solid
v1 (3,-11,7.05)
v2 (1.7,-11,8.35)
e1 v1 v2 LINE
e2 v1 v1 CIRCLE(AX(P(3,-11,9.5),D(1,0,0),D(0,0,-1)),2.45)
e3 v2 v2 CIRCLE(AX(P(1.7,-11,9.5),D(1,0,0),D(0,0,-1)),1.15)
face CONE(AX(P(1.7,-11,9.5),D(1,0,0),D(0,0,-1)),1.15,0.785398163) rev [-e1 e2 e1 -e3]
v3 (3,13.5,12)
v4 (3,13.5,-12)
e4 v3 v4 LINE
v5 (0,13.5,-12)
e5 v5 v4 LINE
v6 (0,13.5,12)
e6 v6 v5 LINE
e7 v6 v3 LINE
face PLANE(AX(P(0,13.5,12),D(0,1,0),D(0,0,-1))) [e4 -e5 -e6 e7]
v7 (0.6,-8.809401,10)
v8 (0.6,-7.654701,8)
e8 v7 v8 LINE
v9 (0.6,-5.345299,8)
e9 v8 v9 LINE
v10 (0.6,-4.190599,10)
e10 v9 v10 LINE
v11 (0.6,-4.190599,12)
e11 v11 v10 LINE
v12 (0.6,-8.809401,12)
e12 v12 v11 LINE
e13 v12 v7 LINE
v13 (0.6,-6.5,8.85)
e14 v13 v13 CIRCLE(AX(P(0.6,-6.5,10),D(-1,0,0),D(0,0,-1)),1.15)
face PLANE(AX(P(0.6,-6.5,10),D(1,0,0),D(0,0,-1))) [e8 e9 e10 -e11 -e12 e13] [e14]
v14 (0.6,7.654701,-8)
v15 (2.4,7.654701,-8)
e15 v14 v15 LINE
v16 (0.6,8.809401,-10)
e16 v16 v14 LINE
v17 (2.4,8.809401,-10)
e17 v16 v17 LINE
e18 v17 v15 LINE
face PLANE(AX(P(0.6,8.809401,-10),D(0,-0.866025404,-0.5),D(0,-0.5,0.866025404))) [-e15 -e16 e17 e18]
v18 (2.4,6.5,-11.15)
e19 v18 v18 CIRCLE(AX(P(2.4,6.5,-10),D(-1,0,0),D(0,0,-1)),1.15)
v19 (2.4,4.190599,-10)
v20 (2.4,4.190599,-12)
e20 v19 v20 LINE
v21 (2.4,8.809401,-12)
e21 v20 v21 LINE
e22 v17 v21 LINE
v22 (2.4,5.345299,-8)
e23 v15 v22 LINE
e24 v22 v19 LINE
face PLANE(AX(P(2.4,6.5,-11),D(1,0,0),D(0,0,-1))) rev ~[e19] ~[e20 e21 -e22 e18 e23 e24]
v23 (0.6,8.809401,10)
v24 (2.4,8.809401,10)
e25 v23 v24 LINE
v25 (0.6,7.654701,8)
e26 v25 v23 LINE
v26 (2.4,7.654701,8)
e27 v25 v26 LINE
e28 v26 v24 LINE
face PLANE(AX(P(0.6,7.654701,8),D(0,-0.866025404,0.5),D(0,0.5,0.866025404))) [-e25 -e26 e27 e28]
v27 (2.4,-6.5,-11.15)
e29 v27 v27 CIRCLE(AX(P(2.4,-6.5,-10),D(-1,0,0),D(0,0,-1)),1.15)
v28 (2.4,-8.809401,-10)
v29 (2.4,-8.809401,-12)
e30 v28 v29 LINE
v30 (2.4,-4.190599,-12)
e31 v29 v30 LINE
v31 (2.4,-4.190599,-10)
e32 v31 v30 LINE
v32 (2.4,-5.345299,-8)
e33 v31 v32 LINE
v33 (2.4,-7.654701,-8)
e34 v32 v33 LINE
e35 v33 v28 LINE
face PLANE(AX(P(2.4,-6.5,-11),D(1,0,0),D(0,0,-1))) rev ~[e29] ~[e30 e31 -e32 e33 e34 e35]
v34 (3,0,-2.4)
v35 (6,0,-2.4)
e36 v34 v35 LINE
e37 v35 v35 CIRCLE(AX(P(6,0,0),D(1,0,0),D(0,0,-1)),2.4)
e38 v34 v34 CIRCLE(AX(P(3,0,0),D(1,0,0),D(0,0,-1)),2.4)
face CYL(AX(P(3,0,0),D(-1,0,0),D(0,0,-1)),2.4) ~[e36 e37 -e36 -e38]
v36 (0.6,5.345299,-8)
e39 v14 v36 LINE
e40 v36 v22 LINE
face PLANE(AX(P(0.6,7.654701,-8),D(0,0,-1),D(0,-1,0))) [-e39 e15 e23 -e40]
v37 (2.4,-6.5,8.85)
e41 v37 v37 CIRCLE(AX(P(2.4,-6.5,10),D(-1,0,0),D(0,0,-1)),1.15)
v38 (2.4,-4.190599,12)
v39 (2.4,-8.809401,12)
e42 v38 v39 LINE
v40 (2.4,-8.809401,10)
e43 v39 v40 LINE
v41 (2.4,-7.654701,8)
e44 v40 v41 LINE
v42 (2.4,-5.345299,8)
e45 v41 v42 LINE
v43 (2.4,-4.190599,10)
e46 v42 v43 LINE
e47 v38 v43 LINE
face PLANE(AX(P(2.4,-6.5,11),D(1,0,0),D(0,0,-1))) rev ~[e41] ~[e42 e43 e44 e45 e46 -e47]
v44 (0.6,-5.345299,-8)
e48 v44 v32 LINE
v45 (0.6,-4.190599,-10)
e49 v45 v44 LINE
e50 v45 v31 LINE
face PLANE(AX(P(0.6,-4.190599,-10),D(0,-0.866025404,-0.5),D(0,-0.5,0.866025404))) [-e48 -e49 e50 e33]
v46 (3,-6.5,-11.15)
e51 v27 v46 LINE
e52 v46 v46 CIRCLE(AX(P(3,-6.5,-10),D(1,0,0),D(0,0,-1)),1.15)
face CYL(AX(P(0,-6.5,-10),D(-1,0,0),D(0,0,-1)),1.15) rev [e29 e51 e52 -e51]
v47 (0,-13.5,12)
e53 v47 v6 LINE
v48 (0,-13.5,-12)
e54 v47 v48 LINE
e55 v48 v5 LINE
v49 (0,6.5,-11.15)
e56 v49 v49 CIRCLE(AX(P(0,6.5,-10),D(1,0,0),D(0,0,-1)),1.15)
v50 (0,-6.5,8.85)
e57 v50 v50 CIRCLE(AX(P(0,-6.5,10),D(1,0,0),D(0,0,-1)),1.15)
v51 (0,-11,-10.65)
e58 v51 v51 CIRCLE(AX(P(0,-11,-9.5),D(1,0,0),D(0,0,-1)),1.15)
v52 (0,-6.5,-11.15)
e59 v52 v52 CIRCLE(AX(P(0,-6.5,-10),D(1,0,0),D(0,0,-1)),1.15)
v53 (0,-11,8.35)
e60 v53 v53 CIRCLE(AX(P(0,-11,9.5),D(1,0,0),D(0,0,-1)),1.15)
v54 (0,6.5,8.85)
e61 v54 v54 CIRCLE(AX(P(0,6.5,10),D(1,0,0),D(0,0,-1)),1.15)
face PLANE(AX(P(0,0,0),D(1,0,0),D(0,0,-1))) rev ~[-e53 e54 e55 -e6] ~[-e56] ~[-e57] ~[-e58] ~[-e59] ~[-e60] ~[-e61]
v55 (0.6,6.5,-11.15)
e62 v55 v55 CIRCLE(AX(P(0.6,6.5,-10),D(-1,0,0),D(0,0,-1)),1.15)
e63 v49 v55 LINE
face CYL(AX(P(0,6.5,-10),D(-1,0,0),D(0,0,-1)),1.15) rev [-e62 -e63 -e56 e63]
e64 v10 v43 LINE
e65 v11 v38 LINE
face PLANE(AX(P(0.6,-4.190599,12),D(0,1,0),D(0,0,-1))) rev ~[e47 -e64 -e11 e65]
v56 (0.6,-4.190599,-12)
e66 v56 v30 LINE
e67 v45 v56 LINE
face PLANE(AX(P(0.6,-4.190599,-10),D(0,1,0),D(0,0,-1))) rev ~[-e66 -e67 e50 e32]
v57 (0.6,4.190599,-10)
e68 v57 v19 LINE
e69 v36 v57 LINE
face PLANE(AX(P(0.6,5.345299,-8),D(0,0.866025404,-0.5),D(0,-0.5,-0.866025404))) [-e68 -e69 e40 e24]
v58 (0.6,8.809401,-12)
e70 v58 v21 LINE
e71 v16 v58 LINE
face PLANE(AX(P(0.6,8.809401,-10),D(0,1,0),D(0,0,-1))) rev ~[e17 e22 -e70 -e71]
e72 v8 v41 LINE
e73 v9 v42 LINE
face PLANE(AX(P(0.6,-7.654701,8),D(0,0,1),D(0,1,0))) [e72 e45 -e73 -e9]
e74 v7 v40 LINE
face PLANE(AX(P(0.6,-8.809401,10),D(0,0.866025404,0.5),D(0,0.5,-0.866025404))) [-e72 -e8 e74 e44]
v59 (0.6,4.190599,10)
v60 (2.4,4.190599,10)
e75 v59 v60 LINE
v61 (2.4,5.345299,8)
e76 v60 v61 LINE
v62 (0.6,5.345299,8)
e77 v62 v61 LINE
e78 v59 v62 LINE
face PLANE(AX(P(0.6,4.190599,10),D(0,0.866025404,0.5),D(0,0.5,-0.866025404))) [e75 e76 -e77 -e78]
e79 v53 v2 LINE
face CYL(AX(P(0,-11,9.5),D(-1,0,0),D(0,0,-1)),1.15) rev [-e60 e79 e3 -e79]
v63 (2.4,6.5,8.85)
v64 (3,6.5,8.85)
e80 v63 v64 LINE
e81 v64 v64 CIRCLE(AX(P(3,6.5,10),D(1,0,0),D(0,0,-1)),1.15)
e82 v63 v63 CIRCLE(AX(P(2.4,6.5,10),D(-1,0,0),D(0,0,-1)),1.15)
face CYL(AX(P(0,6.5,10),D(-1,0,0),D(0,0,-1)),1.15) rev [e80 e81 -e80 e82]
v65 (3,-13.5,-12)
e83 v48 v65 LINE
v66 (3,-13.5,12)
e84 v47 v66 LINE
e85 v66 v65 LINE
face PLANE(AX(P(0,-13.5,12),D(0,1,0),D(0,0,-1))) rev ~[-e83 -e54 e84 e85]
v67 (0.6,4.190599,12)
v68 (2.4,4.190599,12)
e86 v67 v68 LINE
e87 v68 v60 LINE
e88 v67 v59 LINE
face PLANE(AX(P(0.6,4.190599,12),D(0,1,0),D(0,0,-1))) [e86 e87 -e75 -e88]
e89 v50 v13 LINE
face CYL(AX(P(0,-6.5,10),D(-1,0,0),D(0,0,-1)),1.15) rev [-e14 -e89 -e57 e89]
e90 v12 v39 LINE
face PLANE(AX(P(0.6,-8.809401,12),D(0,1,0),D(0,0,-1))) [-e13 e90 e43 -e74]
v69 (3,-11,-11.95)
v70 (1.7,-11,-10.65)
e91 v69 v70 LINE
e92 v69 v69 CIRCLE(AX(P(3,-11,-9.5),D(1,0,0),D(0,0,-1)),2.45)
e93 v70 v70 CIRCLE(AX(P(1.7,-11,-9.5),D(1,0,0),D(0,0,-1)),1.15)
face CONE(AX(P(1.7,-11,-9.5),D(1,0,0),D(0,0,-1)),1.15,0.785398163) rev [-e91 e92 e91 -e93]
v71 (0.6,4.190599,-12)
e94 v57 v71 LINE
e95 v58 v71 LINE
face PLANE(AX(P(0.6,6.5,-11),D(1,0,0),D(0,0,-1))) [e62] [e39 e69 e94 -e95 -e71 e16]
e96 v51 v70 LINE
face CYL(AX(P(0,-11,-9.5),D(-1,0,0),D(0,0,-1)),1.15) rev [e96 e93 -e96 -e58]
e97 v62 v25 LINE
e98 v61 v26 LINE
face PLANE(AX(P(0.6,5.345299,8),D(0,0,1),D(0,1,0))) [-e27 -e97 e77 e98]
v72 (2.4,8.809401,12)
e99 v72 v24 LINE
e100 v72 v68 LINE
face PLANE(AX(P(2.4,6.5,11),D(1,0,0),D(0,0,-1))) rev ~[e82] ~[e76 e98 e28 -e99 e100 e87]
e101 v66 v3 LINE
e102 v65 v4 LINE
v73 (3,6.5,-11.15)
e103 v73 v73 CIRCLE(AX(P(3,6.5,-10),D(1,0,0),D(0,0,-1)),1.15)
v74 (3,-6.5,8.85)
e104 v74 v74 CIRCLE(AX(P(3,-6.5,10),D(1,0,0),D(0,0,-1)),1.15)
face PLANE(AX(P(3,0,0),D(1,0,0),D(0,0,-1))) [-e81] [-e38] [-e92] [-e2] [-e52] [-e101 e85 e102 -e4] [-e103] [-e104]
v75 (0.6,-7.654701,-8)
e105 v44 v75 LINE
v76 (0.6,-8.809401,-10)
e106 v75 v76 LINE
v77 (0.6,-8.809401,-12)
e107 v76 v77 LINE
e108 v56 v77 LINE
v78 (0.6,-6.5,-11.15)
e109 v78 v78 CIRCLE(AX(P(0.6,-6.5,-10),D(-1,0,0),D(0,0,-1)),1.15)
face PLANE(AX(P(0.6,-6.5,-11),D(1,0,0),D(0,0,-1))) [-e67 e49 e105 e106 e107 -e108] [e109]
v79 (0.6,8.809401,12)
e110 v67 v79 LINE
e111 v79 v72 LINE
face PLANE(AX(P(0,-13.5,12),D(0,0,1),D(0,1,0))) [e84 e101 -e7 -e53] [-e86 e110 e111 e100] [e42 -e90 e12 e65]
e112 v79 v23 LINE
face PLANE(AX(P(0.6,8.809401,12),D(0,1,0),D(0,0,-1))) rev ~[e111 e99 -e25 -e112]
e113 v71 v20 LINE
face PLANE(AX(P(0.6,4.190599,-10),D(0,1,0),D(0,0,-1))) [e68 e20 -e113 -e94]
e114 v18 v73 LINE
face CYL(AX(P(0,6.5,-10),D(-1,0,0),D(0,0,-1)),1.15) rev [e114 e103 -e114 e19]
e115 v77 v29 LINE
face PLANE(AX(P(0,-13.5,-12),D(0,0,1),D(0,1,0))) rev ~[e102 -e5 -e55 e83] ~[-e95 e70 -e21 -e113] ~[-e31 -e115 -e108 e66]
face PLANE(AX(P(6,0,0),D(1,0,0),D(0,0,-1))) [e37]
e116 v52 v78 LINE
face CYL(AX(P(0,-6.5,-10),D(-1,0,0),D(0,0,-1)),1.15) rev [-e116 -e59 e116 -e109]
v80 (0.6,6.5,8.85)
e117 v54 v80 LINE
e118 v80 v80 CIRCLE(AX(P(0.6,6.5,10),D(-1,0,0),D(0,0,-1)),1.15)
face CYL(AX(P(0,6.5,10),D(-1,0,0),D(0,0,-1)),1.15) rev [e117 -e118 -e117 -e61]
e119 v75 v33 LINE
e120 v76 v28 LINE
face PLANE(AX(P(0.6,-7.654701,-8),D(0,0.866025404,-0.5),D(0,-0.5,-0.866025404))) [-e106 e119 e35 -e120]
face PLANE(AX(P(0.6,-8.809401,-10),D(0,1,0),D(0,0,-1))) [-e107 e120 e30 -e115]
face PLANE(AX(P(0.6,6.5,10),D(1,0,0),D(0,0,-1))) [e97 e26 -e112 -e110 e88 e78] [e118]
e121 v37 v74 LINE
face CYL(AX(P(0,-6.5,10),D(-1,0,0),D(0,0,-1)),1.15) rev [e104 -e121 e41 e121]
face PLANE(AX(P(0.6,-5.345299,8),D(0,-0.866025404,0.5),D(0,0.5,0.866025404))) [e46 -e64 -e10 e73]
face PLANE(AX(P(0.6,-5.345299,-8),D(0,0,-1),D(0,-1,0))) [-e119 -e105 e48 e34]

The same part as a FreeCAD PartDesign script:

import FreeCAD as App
import Part
import Sketcher

V = App.Vector
Q = App.Units.Quantity


def edges_at(feature, points):
    """Names of the edges that pass closest to the given points."""
    edges = feature.Shape.Edges
    near = lambda p: min(range(len(edges)), key=lambda i: edges[i].distToShape(Part.Vertex(*p))[0])
    return sorted({f"Edge{near(p) + 1}" for p in points})

doc = App.newDocument("Part")
params = doc.addObject("Spreadsheet::Sheet", "Params")
for row, (alias, value) in enumerate([
    ("sketch1_diameter", "2.3 mm"),
    ("sketch1_width", "27 mm"),
    ("sketch1_height", "24 mm"),
    ("pad1_length", "3 mm"),
    ("sketch2_diameter", "4.8 mm"),
    ("pad2_length", "3 mm"),
    ("chamfer_size", "1.3 mm"),
    ("sketch3_diameter", "2.3 mm"),
    ("pocket1_length", "3 mm"),
    ("pocket2_length", "1.8 mm"),
    ("sketch5_height", "2 mm"),
    ("pocket3_length", "1.8 mm"),
], start=1):
    params.set(f"A{row}", alias)
    params.set(f"B{row}", "=" + value)
    params.setAlias(f"B{row}", alias)

body = doc.addObject("PartDesign::Body", "Body")

sketch1 = body.newObject("Sketcher::SketchObject", "Sketch")
sketch1.AttachmentSupport = (doc.getObject("YZ_Plane"), [""])
sketch1.MapMode = "FlatFace"
sketch1.addGeometry([
    Part.LineSegment(V(13.5, 12, 0), V(-13.5, 12, 0)),
    Part.LineSegment(V(-13.5, 12, 0), V(-13.5, -12, 0)),
    Part.LineSegment(V(-13.5, -12, 0), V(13.5, -12, 0)),
    Part.LineSegment(V(13.5, -12, 0), V(13.5, 12, 0)),
    Part.Circle(V(-11, 9.5, 0), V(0, 0, 1), 1.1),
    Part.Circle(V(-11, -9.5, 0), V(0, 0, 1), 1.1),
], False)
sketch1.addConstraint([
    Sketcher.Constraint("Coincident", 0, 2, 1, 1),
    Sketcher.Constraint("Coincident", 1, 2, 2, 1),
    Sketcher.Constraint("Coincident", 2, 2, 3, 1),
    Sketcher.Constraint("Coincident", 3, 2, 0, 1),
    Sketcher.Constraint("Horizontal", 0),
    Sketcher.Constraint("Vertical", 1),
    Sketcher.Constraint("Horizontal", 2),
    Sketcher.Constraint("Vertical", 3),
    Sketcher.Constraint("Equal", 4, 5),
    Sketcher.Constraint("Symmetric", 0, 2, 2, 2, -1, 1),
    Sketcher.Constraint("Symmetric", 4, 3, 5, 3, -1),
    Sketcher.Constraint("Diameter", 4, Q("2.3 mm")),
    Sketcher.Constraint("DistanceX", 0, 2, 0, 1, Q("27 mm")),
    Sketcher.Constraint("DistanceY", 1, 2, 1, 1, Q("24 mm")),
    Sketcher.Constraint("DistanceX", 4, 3, -1, 1, Q("11 mm")),
    Sketcher.Constraint("DistanceY", 5, 3, 4, 3, Q("19 mm")),
])
sketch1.setExpression("Constraints[11]", "Params.sketch1_diameter")
sketch1.setExpression("Constraints[12]", "Params.sketch1_width")
sketch1.setExpression("Constraints[13]", "Params.sketch1_height")
pad1 = body.newObject("PartDesign::Pad", "Pad")
pad1.Profile = sketch1
pad1.setExpression("Length", "Params.pad1_length")

sketch2 = body.newObject("Sketcher::SketchObject", "Sketch001")
sketch2.AttachmentSupport = (doc.getObject("YZ_Plane"), [""])
sketch2.MapMode = "FlatFace"
sketch2.AttachmentOffset = App.Placement(V(0, 0, 3), App.Rotation())
sketch2.addGeometry(Part.Circle(V(0, 0, 0), V(0, 0, 1), 2.4), False)
sketch2.addConstraint([
    Sketcher.Constraint("Coincident", 0, 3, -1, 1),
    Sketcher.Constraint("Diameter", 0, Q("4.8 mm")),
])
sketch2.setExpression("Constraints[1]", "Params.sketch2_diameter")
pad2 = body.newObject("PartDesign::Pad", "Pad001")
pad2.Profile = sketch2
pad2.setExpression("Length", "Params.pad2_length")
doc.recompute()

chamfer = body.newObject("PartDesign::Chamfer", "Chamfer")
chamfer.Base = (pad2, edges_at(pad2, [(3, -11, 10.65), (3, -11, -8.35)]))
chamfer.setExpression("Size", "Params.chamfer_size")

sketch3 = body.newObject("Sketcher::SketchObject", "Sketch002")
sketch3.AttachmentSupport = (doc.getObject("YZ_Plane"), [""])
sketch3.MapMode = "FlatFace"
sketch3.addGeometry([
    Part.Circle(V(6.5, 10, 0), V(0, 0, 1), 1.1),
    Part.Circle(V(-6.5, 10, 0), V(0, 0, 1), 1.1),
    Part.Circle(V(-6.5, -10, 0), V(0, 0, 1), 1.1),
    Part.Circle(V(6.5, -10, 0), V(0, 0, 1), 1.1),
], False)
sketch3.addConstraint([
    Sketcher.Constraint("Equal", 0, 1),
    Sketcher.Constraint("Equal", 1, 2),
    Sketcher.Constraint("Equal", 2, 3),
    Sketcher.Constraint("Symmetric", 0, 3, 2, 3, -1, 1),
    Sketcher.Constraint("Symmetric", 1, 3, 3, 3, -1, 1),
    Sketcher.Constraint("Symmetric", 0, 3, 1, 3, -2),
    Sketcher.Constraint("Diameter", 0, Q("2.3 mm")),
    Sketcher.Constraint("DistanceY", -1, 1, 0, 3, Q("10 mm")),
    Sketcher.Constraint("DistanceX", 1, 3, 0, 3, Q("13 mm")),
])
sketch3.setExpression("Constraints[6]", "Params.sketch3_diameter")
pocket1 = body.newObject("PartDesign::Pocket", "Pocket")
pocket1.Profile = sketch3
pocket1.setExpression("Length", "Params.pocket1_length")
pocket1.Reversed = True

sketch4 = body.newObject("Sketcher::SketchObject", "Sketch003")
sketch4.AttachmentSupport = (doc.getObject("YZ_Plane"), [""])
sketch4.MapMode = "FlatFace"
sketch4.AttachmentOffset = App.Placement(V(0, 0, 0.6), App.Rotation())
sketch4.addGeometry([
    Part.LineSegment(V(4.2, 10, 0), V(5.3, 8, 0)),
    Part.LineSegment(V(5.3, 8, 0), V(7.7, 8, 0)),
    Part.LineSegment(V(7.7, 8, 0), V(8.8, 10, 0)),
    Part.LineSegment(V(8.8, 10, 0), V(7.7, 12, 0)),
    Part.LineSegment(V(7.7, 12, 0), V(5.3, 12, 0)),
    Part.LineSegment(V(5.3, 12, 0), V(4.2, 10, 0)),
    Part.LineSegment(V(-4.2, 10, 0), V(-5.3, 12, 0)),
    Part.LineSegment(V(-5.3, 12, 0), V(-7.7, 12, 0)),
    Part.LineSegment(V(-7.7, 12, 0), V(-8.8, 10, 0)),
    Part.LineSegment(V(-8.8, 10, 0), V(-7.7, 8, 0)),
    Part.LineSegment(V(-7.7, 8, 0), V(-5.3, 8, 0)),
    Part.LineSegment(V(-5.3, 8, 0), V(-4.2, 10, 0)),
    Part.LineSegment(V(-4.2, -10, 0), V(-5.3, -8, 0)),
    Part.LineSegment(V(-5.3, -8, 0), V(-7.7, -8, 0)),
    Part.LineSegment(V(-7.7, -8, 0), V(-8.8, -10, 0)),
    Part.LineSegment(V(-8.8, -10, 0), V(-7.7, -12, 0)),
    Part.LineSegment(V(-7.7, -12, 0), V(-5.3, -12, 0)),
    Part.LineSegment(V(-5.3, -12, 0), V(-4.2, -10, 0)),
    Part.LineSegment(V(8.8, -10, 0), V(7.7, -8, 0)),
    Part.LineSegment(V(7.7, -8, 0), V(5.3, -8, 0)),
    Part.LineSegment(V(5.3, -8, 0), V(4.2, -10, 0)),
    Part.LineSegment(V(4.2, -10, 0), V(5.3, -12, 0)),
    Part.LineSegment(V(5.3, -12, 0), V(7.7, -12, 0)),
    Part.LineSegment(V(7.7, -12, 0), V(8.8, -10, 0)),
], False)
sketch4.addConstraint([
    Sketcher.Constraint("Coincident", 0, 2, 1, 1),
    Sketcher.Constraint("Coincident", 1, 2, 2, 1),
    Sketcher.Constraint("Coincident", 2, 2, 3, 1),
    Sketcher.Constraint("Coincident", 3, 2, 4, 1),
    Sketcher.Constraint("Coincident", 4, 2, 5, 1),
    Sketcher.Constraint("Coincident", 5, 2, 0, 1),
    Sketcher.Constraint("Coincident", 6, 2, 7, 1),
    Sketcher.Constraint("Coincident", 7, 2, 8, 1),
    Sketcher.Constraint("Coincident", 8, 2, 9, 1),
    Sketcher.Constraint("Coincident", 9, 2, 10, 1),
    Sketcher.Constraint("Coincident", 10, 2, 11, 1),
    Sketcher.Constraint("Coincident", 11, 2, 6, 1),
    Sketcher.Constraint("Coincident", 12, 2, 13, 1),
    Sketcher.Constraint("Coincident", 13, 2, 14, 1),
    Sketcher.Constraint("Coincident", 14, 2, 15, 1),
    Sketcher.Constraint("Coincident", 15, 2, 16, 1),
    Sketcher.Constraint("Coincident", 16, 2, 17, 1),
    Sketcher.Constraint("Coincident", 17, 2, 12, 1),
    Sketcher.Constraint("Coincident", 18, 2, 19, 1),
    Sketcher.Constraint("Coincident", 19, 2, 20, 1),
    Sketcher.Constraint("Coincident", 20, 2, 21, 1),
    Sketcher.Constraint("Coincident", 21, 2, 22, 1),
    Sketcher.Constraint("Coincident", 22, 2, 23, 1),
    Sketcher.Constraint("Coincident", 23, 2, 18, 1),
    Sketcher.Constraint("Horizontal", 1),
    Sketcher.Constraint("Horizontal", 4),
    Sketcher.Constraint("Horizontal", 7),
    Sketcher.Constraint("Horizontal", 10),
    Sketcher.Constraint("Horizontal", 13),
    Sketcher.Constraint("Horizontal", 16),
    Sketcher.Constraint("Horizontal", 19),
    Sketcher.Constraint("Horizontal", 22),
    Sketcher.Constraint("Symmetric", 0, 2, 12, 2, -1, 1),
    Sketcher.Constraint("Symmetric", 2, 2, 14, 2, -1, 1),
    Sketcher.Constraint("Symmetric", 3, 2, 15, 2, -1, 1),
    Sketcher.Constraint("Symmetric", 5, 2, 17, 2, -1, 1),
    Sketcher.Constraint("Symmetric", 9, 2, 18, 2, -1, 1),
    Sketcher.Constraint("Symmetric", 11, 2, 20, 2, -1, 1),
    Sketcher.Constraint("Symmetric", 6, 2, 21, 2, -1, 1),
    Sketcher.Constraint("Symmetric", 8, 2, 23, 2, -1, 1),
    Sketcher.Constraint("Symmetric", 4, 2, 6, 2, -2),
    Sketcher.Constraint("Symmetric", 2, 2, 8, 2, -2),
    Sketcher.Constraint("Symmetric", 1, 2, 9, 2, -2),
    Sketcher.Constraint("Symmetric", 5, 2, 11, 2, -2),
    Sketcher.Constraint("Parallel", 0, 3),
    Sketcher.Constraint("Parallel", 2, 5),
    Sketcher.Constraint("Parallel", 3, 6),
    Sketcher.Constraint("Parallel", 5, 8),
    Sketcher.Constraint("Parallel", 8, 11),
    Sketcher.Constraint("Parallel", 11, 14),
    Sketcher.Constraint("Parallel", 14, 17),
    Sketcher.Constraint("Parallel", 17, 20),
    Sketcher.Constraint("Parallel", 20, 23),
    Sketcher.Constraint("Horizontal", 2, 2, 5, 2),
    Sketcher.Constraint("Vertical", 1, 2, 3, 2),
    Sketcher.Constraint("Angle", 0, Q("-60 deg")),
    Sketcher.Constraint("DistanceY", -1, 1, 0, 2, Q("8 mm")),
    Sketcher.Constraint("DistanceY", -1, 1, 2, 2, Q("10 mm")),
    Sketcher.Constraint("DistanceX", 6, 2, 3, 2, Q("13 mm")),
    Sketcher.Constraint("DistanceX", 1, 1, 1, 2, Q("2.309401 mm")),
])
pocket2 = body.newObject("PartDesign::Pocket", "Pocket001")
pocket2.Profile = sketch4
pocket2.setExpression("Length", "Params.pocket2_length")
pocket2.Reversed = True

sketch5 = body.newObject("Sketcher::SketchObject", "Sketch004")
sketch5.AttachmentSupport = (doc.getObject("YZ_Plane"), [""])
sketch5.MapMode = "FlatFace"
sketch5.AttachmentOffset = App.Placement(V(0, 0, 0.6), App.Rotation())
sketch5.addGeometry([
    Part.LineSegment(V(8.8, 12, 0), V(4.2, 12, 0)),
    Part.LineSegment(V(4.2, 12, 0), V(4.2, 10, 0)),
    Part.LineSegment(V(4.2, 10, 0), V(8.8, 10, 0)),
    Part.LineSegment(V(8.8, 10, 0), V(8.8, 12, 0)),
    Part.LineSegment(V(-4.2, 12, 0), V(-8.8, 12, 0)),
    Part.LineSegment(V(-8.8, 12, 0), V(-8.8, 10, 0)),
    Part.LineSegment(V(-8.8, 10, 0), V(-4.2, 10, 0)),
    Part.LineSegment(V(-4.2, 10, 0), V(-4.2, 12, 0)),
    Part.LineSegment(V(8.8, -10, 0), V(4.2, -10, 0)),
    Part.LineSegment(V(4.2, -10, 0), V(4.2, -12, 0)),
    Part.LineSegment(V(4.2, -12, 0), V(8.8, -12, 0)),
    Part.LineSegment(V(8.8, -12, 0), V(8.8, -10, 0)),
    Part.LineSegment(V(-4.2, -10, 0), V(-8.8, -10, 0)),
    Part.LineSegment(V(-8.8, -10, 0), V(-8.8, -12, 0)),
    Part.LineSegment(V(-8.8, -12, 0), V(-4.2, -12, 0)),
    Part.LineSegment(V(-4.2, -12, 0), V(-4.2, -10, 0)),
], False)
sketch5.addConstraint([
    Sketcher.Constraint("Coincident", 0, 2, 1, 1),
    Sketcher.Constraint("Coincident", 1, 2, 2, 1),
    Sketcher.Constraint("Coincident", 2, 2, 3, 1),
    Sketcher.Constraint("Coincident", 3, 2, 0, 1),
    Sketcher.Constraint("Coincident", 4, 2, 5, 1),
    Sketcher.Constraint("Coincident", 5, 2, 6, 1),
    Sketcher.Constraint("Coincident", 6, 2, 7, 1),
    Sketcher.Constraint("Coincident", 7, 2, 4, 1),
    Sketcher.Constraint("Coincident", 8, 2, 9, 1),
    Sketcher.Constraint("Coincident", 9, 2, 10, 1),
    Sketcher.Constraint("Coincident", 10, 2, 11, 1),
    Sketcher.Constraint("Coincident", 11, 2, 8, 1),
    Sketcher.Constraint("Coincident", 12, 2, 13, 1),
    Sketcher.Constraint("Coincident", 13, 2, 14, 1),
    Sketcher.Constraint("Coincident", 14, 2, 15, 1),
    Sketcher.Constraint("Coincident", 15, 2, 12, 1),
    Sketcher.Constraint("Horizontal", 0),
    Sketcher.Constraint("Vertical", 1),
    Sketcher.Constraint("Horizontal", 2),
    Sketcher.Constraint("Vertical", 3),
    Sketcher.Constraint("Horizontal", 4),
    Sketcher.Constraint("Vertical", 5),
    Sketcher.Constraint("Horizontal", 6),
    Sketcher.Constraint("Vertical", 7),
    Sketcher.Constraint("Horizontal", 8),
    Sketcher.Constraint("Vertical", 9),
    Sketcher.Constraint("Horizontal", 10),
    Sketcher.Constraint("Vertical", 11),
    Sketcher.Constraint("Horizontal", 12),
    Sketcher.Constraint("Vertical", 13),
    Sketcher.Constraint("Horizontal", 14),
    Sketcher.Constraint("Vertical", 15),
    Sketcher.Constraint("Symmetric", 6, 2, 8, 2, -1, 1),
    Sketcher.Constraint("Symmetric", 4, 2, 10, 2, -1, 1),
    Sketcher.Constraint("Symmetric", 2, 2, 12, 2, -1, 1),
    Sketcher.Constraint("Symmetric", 0, 2, 14, 2, -1, 1),
    Sketcher.Constraint("Symmetric", 3, 2, 4, 2, -2),
    Sketcher.Constraint("Symmetric", 1, 2, 6, 2, -2),
    Sketcher.Constraint("DistanceY", 1, 2, 1, 1, Q("2 mm")),
    Sketcher.Constraint("DistanceY", -1, 1, 0, 2, Q("12 mm")),
    Sketcher.Constraint("DistanceX", 4, 2, 0, 2, Q("13 mm")),
    Sketcher.Constraint("DistanceX", -1, 1, 0, 2, Q("4.190599 mm")),
])
sketch5.setExpression("Constraints[38]", "Params.sketch5_height")
pocket3 = body.newObject("PartDesign::Pocket", "Pocket002")
pocket3.Profile = sketch5
pocket3.setExpression("Length", "Params.pocket3_length")
pocket3.Reversed = True

doc.recompute()
